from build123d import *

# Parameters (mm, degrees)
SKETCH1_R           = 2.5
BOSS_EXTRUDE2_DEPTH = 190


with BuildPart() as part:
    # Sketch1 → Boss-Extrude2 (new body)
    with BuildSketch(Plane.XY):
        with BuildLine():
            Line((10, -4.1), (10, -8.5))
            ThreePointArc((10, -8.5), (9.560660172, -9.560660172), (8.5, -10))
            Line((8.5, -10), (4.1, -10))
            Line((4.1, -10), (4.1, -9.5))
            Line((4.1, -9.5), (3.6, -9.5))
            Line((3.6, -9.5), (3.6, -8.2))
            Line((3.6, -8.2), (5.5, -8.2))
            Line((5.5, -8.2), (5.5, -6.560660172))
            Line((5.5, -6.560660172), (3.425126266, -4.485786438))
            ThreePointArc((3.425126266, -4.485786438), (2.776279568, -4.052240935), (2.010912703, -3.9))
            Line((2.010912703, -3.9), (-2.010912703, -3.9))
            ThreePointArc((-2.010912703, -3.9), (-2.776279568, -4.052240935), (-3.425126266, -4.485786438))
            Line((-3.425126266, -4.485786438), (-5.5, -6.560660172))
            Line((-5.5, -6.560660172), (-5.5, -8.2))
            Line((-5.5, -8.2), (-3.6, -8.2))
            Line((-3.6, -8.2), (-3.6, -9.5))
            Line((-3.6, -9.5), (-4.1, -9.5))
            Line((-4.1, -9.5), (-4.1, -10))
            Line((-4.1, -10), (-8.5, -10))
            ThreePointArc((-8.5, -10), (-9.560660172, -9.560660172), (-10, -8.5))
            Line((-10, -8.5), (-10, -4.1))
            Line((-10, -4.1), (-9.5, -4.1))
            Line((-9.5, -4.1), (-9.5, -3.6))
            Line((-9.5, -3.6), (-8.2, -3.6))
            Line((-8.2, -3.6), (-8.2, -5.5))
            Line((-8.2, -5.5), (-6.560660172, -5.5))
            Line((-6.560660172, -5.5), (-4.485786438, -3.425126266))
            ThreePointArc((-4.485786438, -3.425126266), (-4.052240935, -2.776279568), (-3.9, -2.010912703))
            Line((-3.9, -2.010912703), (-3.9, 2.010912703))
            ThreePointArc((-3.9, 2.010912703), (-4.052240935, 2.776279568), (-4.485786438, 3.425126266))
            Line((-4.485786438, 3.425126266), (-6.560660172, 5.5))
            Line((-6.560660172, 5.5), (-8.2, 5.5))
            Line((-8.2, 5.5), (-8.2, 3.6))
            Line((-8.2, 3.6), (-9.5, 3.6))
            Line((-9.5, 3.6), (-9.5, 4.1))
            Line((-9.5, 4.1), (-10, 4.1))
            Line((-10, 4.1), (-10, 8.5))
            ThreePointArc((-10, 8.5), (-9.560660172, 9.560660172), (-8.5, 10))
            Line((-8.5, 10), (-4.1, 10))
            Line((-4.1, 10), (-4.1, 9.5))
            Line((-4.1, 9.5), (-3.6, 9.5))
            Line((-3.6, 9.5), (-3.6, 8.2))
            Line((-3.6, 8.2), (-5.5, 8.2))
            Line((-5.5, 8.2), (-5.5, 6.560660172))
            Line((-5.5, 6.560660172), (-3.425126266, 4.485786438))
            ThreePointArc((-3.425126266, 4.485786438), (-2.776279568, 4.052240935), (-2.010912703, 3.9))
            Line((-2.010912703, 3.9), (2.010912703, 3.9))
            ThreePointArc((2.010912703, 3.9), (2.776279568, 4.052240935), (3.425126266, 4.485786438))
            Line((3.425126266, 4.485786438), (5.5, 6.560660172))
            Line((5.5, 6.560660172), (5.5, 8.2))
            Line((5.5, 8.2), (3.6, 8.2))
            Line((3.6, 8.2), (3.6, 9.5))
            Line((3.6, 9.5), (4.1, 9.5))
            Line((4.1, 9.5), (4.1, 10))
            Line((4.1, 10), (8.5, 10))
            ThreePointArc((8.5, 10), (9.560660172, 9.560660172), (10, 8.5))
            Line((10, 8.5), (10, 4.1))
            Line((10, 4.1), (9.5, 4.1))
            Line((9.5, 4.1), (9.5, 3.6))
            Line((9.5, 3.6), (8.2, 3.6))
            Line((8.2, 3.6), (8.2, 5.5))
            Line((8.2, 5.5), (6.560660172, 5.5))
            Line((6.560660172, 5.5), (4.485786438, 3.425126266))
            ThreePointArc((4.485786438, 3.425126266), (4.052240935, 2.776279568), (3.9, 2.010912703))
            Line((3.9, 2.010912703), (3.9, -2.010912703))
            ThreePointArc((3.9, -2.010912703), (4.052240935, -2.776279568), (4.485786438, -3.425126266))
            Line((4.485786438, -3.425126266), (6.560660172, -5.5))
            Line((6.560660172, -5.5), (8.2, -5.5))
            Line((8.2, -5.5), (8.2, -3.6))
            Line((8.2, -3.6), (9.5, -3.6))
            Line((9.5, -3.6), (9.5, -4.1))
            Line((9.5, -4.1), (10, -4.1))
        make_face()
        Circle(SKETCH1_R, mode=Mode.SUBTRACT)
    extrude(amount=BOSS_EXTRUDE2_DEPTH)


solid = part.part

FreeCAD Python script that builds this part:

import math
import FreeCAD as App
import Part
import Sketcher

V = App.Vector
Q = App.Units.Quantity

doc = App.newDocument("Part")
params = doc.addObject("Spreadsheet::Sheet", "Params")
for row, (alias, value) in enumerate([
    ("sketch1_diameter", "5 mm"),
    ("sketch1_radius", "2 mm"),
    ("sketch1_radius2", "1.5 mm"),
    ("sketch1_width", "0.5 mm"),
    ("sketch1_width2", "1.3 mm"),
    ("pad1_length", "190 mm"),
], start=1):
    params.set(f"A{row}", alias)
    params.set(f"B{row}", "=" + value)
    params.setAlias(f"B{row}", alias)

body = doc.addObject("PartDesign::Body", "Body")

sketch1 = doc.addObject("Sketcher::SketchObject", "Sketch")
body.addObject(sketch1)
sketch1.AttachmentSupport = (doc.XY_Plane, [""])
sketch1.MapMode = "FlatFace"
sketch1.addGeometry([
    Part.LineSegment(V(10, -8.5, 0), V(10, -4.1, 0)),
    Part.LineSegment(V(10, -4.1, 0), V(9.5, -4.1, 0)),
    Part.LineSegment(V(9.5, -4.1, 0), V(9.5, -3.6, 0)),
    Part.LineSegment(V(9.5, -3.6, 0), V(8.2, -3.6, 0)),
    Part.LineSegment(V(8.2, -3.6, 0), V(8.2, -5.5, 0)),
    Part.LineSegment(V(8.2, -5.5, 0), V(6.56, -5.5, 0)),
    Part.LineSegment(V(6.56, -5.5, 0), V(4.49, -3.43, 0)),
    Part.ArcOfCircle(Part.Circle(V(5.9, -2.01, 0), V(0, 0, 1), 2), math.radians(180), math.radians(225)),
    Part.LineSegment(V(3.9, -2.01, 0), V(3.9, 2.01, 0)),
    Part.ArcOfCircle(Part.Circle(V(5.9, 2.01, 0), V(0, 0, 1), 2), math.radians(135), math.radians(180)),
    Part.LineSegment(V(4.49, 3.43, 0), V(6.56, 5.5, 0)),
    Part.LineSegment(V(6.56, 5.5, 0), V(8.2, 5.5, 0)),
    Part.LineSegment(V(8.2, 5.5, 0), V(8.2, 3.6, 0)),
    Part.LineSegment(V(8.2, 3.6, 0), V(9.5, 3.6, 0)),
    Part.LineSegment(V(9.5, 3.6, 0), V(9.5, 4.1, 0)),
    Part.LineSegment(V(9.5, 4.1, 0), V(10, 4.1, 0)),
    Part.LineSegment(V(10, 4.1, 0), V(10, 8.5, 0)),
    Part.ArcOfCircle(Part.Circle(V(8.5, 8.5, 0), V(0, 0, 1), 1.5), math.radians(0), math.radians(90)),
    Part.LineSegment(V(8.5, 10, 0), V(4.1, 10, 0)),
    Part.LineSegment(V(4.1, 10, 0), V(4.1, 9.5, 0)),
    Part.LineSegment(V(4.1, 9.5, 0), V(3.6, 9.5, 0)),
    Part.LineSegment(V(3.6, 9.5, 0), V(3.6, 8.2, 0)),
    Part.LineSegment(V(3.6, 8.2, 0), V(5.5, 8.2, 0)),
    Part.LineSegment(V(5.5, 8.2, 0), V(5.5, 6.56, 0)),
    Part.LineSegment(V(5.5, 6.56, 0), V(3.43, 4.49, 0)),
    Part.ArcOfCircle(Part.Circle(V(2.01, 5.9, 0), V(0, 0, 1), 2), math.radians(-90), math.radians(-45)),
    Part.LineSegment(V(2.01, 3.9, 0), V(-2.01, 3.9, 0)),
    Part.ArcOfCircle(Part.Circle(V(-2.01, 5.9, 0), V(0, 0, 1), 2), math.radians(-135), math.radians(-90)),
    Part.LineSegment(V(-3.43, 4.49, 0), V(-5.5, 6.56, 0)),
    Part.LineSegment(V(-5.5, 6.56, 0), V(-5.5, 8.2, 0)),
    Part.LineSegment(V(-5.5, 8.2, 0), V(-3.6, 8.2, 0)),
    Part.LineSegment(V(-3.6, 8.2, 0), V(-3.6, 9.5, 0)),
    Part.LineSegment(V(-3.6, 9.5, 0), V(-4.1, 9.5, 0)),
    Part.LineSegment(V(-4.1, 9.5, 0), V(-4.1, 10, 0)),
    Part.LineSegment(V(-4.1, 10, 0), V(-8.5, 10, 0)),
    Part.ArcOfCircle(Part.Circle(V(-8.5, 8.5, 0), V(0, 0, 1), 1.5), math.radians(90), math.radians(180)),
    Part.LineSegment(V(-10, 8.5, 0), V(-10, 4.1, 0)),
    Part.LineSegment(V(-10, 4.1, 0), V(-9.5, 4.1, 0)),
    Part.LineSegment(V(-9.5, 4.1, 0), V(-9.5, 3.6, 0)),
    Part.LineSegment(V(-9.5, 3.6, 0), V(-8.2, 3.6, 0)),
    Part.LineSegment(V(-8.2, 3.6, 0), V(-8.2, 5.5, 0)),
    Part.LineSegment(V(-8.2, 5.5, 0), V(-6.56, 5.5, 0)),
    Part.LineSegment(V(-6.56, 5.5, 0), V(-4.49, 3.43, 0)),
    Part.ArcOfCircle(Part.Circle(V(-5.9, 2.01, 0), V(0, 0, 1), 2), math.radians(0), math.radians(45)),
    Part.LineSegment(V(-3.9, 2.01, 0), V(-3.9, -2.01, 0)),
    Part.ArcOfCircle(Part.Circle(V(-5.9, -2.01, 0), V(0, 0, 1), 2), math.radians(-45), math.radians(0)),
    Part.LineSegment(V(-4.49, -3.43, 0), V(-6.56, -5.5, 0)),
    Part.LineSegment(V(-6.56, -5.5, 0), V(-8.2, -5.5, 0)),
    Part.LineSegment(V(-8.2, -5.5, 0), V(-8.2, -3.6, 0)),
    Part.LineSegment(V(-8.2, -3.6, 0), V(-9.5, -3.6, 0)),
    Part.LineSegment(V(-9.5, -3.6, 0), V(-9.5, -4.1, 0)),
    Part.LineSegment(V(-9.5, -4.1, 0), V(-10, -4.1, 0)),
    Part.LineSegment(V(-10, -4.1, 0), V(-10, -8.5, 0)),
    Part.ArcOfCircle(Part.Circle(V(-8.5, -8.5, 0), V(0, 0, 1), 1.5), math.radians(180), math.radians(270)),
    Part.LineSegment(V(-8.5, -10, 0), V(-4.1, -10, 0)),
    Part.LineSegment(V(-4.1, -10, 0), V(-4.1, -9.5, 0)),
    Part.LineSegment(V(-4.1, -9.5, 0), V(-3.6, -9.5, 0)),
    Part.LineSegment(V(-3.6, -9.5, 0), V(-3.6, -8.2, 0)),
    Part.LineSegment(V(-3.6, -8.2, 0), V(-5.5, -8.2, 0)),
    Part.LineSegment(V(-5.5, -8.2, 0), V(-5.5, -6.56, 0)),
    Part.LineSegment(V(-5.5, -6.56, 0), V(-3.43, -4.49, 0)),
    Part.ArcOfCircle(Part.Circle(V(-2.01, -5.9, 0), V(0, 0, 1), 2), math.radians(90), math.radians(135)),
    Part.LineSegment(V(-2.01, -3.9, 0), V(2.01, -3.9, 0)),
    Part.ArcOfCircle(Part.Circle(V(2.01, -5.9, 0), V(0, 0, 1), 2), math.radians(45), math.radians(90)),
    Part.LineSegment(V(3.43, -4.49, 0), V(5.5, -6.56, 0)),
    Part.LineSegment(V(5.5, -6.56, 0), V(5.5, -8.2, 0)),
    Part.LineSegment(V(5.5, -8.2, 0), V(3.6, -8.2, 0)),
    Part.LineSegment(V(3.6, -8.2, 0), V(3.6, -9.5, 0)),
    Part.LineSegment(V(3.6, -9.5, 0), V(4.1, -9.5, 0)),
    Part.LineSegment(V(4.1, -9.5, 0), V(4.1, -10, 0)),
    Part.LineSegment(V(4.1, -10, 0), V(8.5, -10, 0)),
    Part.ArcOfCircle(Part.Circle(V(8.5, -8.5, 0), V(0, 0, 1), 1.5), math.radians(-90), math.radians(0)),
    Part.Circle(V(0, 0, 0), V(0, 0, 1), 2.5),
], False)
sketch1.addConstraint([
    Sketcher.Constraint("Coincident", 0, 2, 1, 1),
    Sketcher.Constraint("Coincident", 1, 2, 2, 1),
    Sketcher.Constraint("Coincident", 2, 2, 3, 1),
    Sketcher.Constraint("Coincident", 3, 2, 4, 1),
    Sketcher.Constraint("Coincident", 4, 2, 5, 1),
    Sketcher.Constraint("Coincident", 5, 2, 6, 1),
    Sketcher.Constraint("Tangent", 6, 2, 7, 2),
    Sketcher.Constraint("Tangent", 7, 1, 8, 1),
    Sketcher.Constraint("Tangent", 8, 2, 9, 2),
    Sketcher.Constraint("Tangent", 9, 1, 10, 1),
    Sketcher.Constraint("Coincident", 10, 2, 11, 1),
    Sketcher.Constraint("Coincident", 11, 2, 12, 1),
    Sketcher.Constraint("Coincident", 12, 2, 13, 1),
    Sketcher.Constraint("Coincident", 13, 2, 14, 1),
    Sketcher.Constraint("Coincident", 14, 2, 15, 1),
    Sketcher.Constraint("Coincident", 15, 2, 16, 1),
    Sketcher.Constraint("Tangent", 16, 2, 17, 1),
    Sketcher.Constraint("Tangent", 17, 2, 18, 1),
    Sketcher.Constraint("Coincident", 18, 2, 19, 1),
    Sketcher.Constraint("Coincident", 19, 2, 20, 1),
    Sketcher.Constraint("Coincident", 20, 2, 21, 1),
    Sketcher.Constraint("Coincident", 21, 2, 22, 1),
    Sketcher.Constraint("Coincident", 22, 2, 23, 1),
    Sketcher.Constraint("Coincident", 23, 2, 24, 1),
    Sketcher.Constraint("Tangent", 24, 2, 25, 2),
    Sketcher.Constraint("Tangent", 25, 1, 26, 1),
    Sketcher.Constraint("Tangent", 26, 2, 27, 2),
    Sketcher.Constraint("Tangent", 27, 1, 28, 1),
    Sketcher.Constraint("Coincident", 28, 2, 29, 1),
    Sketcher.Constraint("Coincident", 29, 2, 30, 1),
    Sketcher.Constraint("Coincident", 30, 2, 31, 1),
    Sketcher.Constraint("Coincident", 31, 2, 32, 1),
    Sketcher.Constraint("Coincident", 32, 2, 33, 1),
    Sketcher.Constraint("Coincident", 33, 2, 34, 1),
    Sketcher.Constraint("Tangent", 34, 2, 35, 1),
    Sketcher.Constraint("Tangent", 35, 2, 36, 1),
    Sketcher.Constraint("Coincident", 36, 2, 37, 1),
    Sketcher.Constraint("Coincident", 37, 2, 38, 1),
    Sketcher.Constraint("Coincident", 38, 2, 39, 1),
    Sketcher.Constraint("Coincident", 39, 2, 40, 1),
    Sketcher.Constraint("Coincident", 40, 2, 41, 1),
    Sketcher.Constraint("Coincident", 41, 2, 42, 1),
    Sketcher.Constraint("Tangent", 42, 2, 43, 2),
    Sketcher.Constraint("Tangent", 43, 1, 44, 1),
    Sketcher.Constraint("Tangent", 44, 2, 45, 2),
    Sketcher.Constraint("Tangent", 45, 1, 46, 1),
    Sketcher.Constraint("Coincident", 46, 2, 47, 1),
    Sketcher.Constraint("Coincident", 47, 2, 48, 1),
    Sketcher.Constraint("Coincident", 48, 2, 49, 1),
    Sketcher.Constraint("Coincident", 49, 2, 50, 1),
    Sketcher.Constraint("Coincident", 50, 2, 51, 1),
    Sketcher.Constraint("Coincident", 51, 2, 52, 1),
    Sketcher.Constraint("Tangent", 52, 2, 53, 1),
    Sketcher.Constraint("Tangent", 53, 2, 54, 1),
    Sketcher.Constraint("Coincident", 54, 2, 55, 1),
    Sketcher.Constraint("Coincident", 55, 2, 56, 1),
    Sketcher.Constraint("Coincident", 56, 2, 57, 1),
    Sketcher.Constraint("Coincident", 57, 2, 58, 1),
    Sketcher.Constraint("Coincident", 58, 2, 59, 1),
    Sketcher.Constraint("Coincident", 59, 2, 60, 1),
    Sketcher.Constraint("Tangent", 60, 2, 61, 2),
    Sketcher.Constraint("Tangent", 61, 1, 62, 1),
    Sketcher.Constraint("Tangent", 62, 2, 63, 2),
    Sketcher.Constraint("Tangent", 63, 1, 64, 1),
    Sketcher.Constraint("Coincident", 64, 2, 65, 1),
    Sketcher.Constraint("Coincident", 65, 2, 66, 1),
    Sketcher.Constraint("Coincident", 66, 2, 67, 1),
    Sketcher.Constraint("Coincident", 67, 2, 68, 1),
    Sketcher.Constraint("Coincident", 68, 2, 69, 1),
    Sketcher.Constraint("Coincident", 69, 2, 70, 1),
    Sketcher.Constraint("Tangent", 70, 2, 71, 1),
    Sketcher.Constraint("Tangent", 71, 2, 0, 1),
    Sketcher.Constraint("Vertical", 0),
    Sketcher.Constraint("Horizontal", 1),
    Sketcher.Constraint("Vertical", 2),
    Sketcher.Constraint("Horizontal", 3),
    Sketcher.Constraint("Vertical", 4),
    Sketcher.Constraint("Horizontal", 5),
    Sketcher.Constraint("Vertical", 8),
    Sketcher.Constraint("Horizontal", 11),
    Sketcher.Constraint("Vertical", 12),
    Sketcher.Constraint("Horizontal", 13),
    Sketcher.Constraint("Vertical", 14),
    Sketcher.Constraint("Horizontal", 15),
    Sketcher.Constraint("Vertical", 16),
    Sketcher.Constraint("Horizontal", 18),
    Sketcher.Constraint("Vertical", 19),
    Sketcher.Constraint("Horizontal", 20),
    Sketcher.Constraint("Vertical", 21),
    Sketcher.Constraint("Horizontal", 22),
    Sketcher.Constraint("Vertical", 23),
    Sketcher.Constraint("Horizontal", 26),
    Sketcher.Constraint("Vertical", 29),
    Sketcher.Constraint("Horizontal", 30),
    Sketcher.Constraint("Vertical", 31),
    Sketcher.Constraint("Horizontal", 32),
    Sketcher.Constraint("Vertical", 33),
    Sketcher.Constraint("Horizontal", 34),
    Sketcher.Constraint("Vertical", 36),
    Sketcher.Constraint("Horizontal", 37),
    Sketcher.Constraint("Vertical", 38),
    Sketcher.Constraint("Horizontal", 39),
    Sketcher.Constraint("Vertical", 40),
    Sketcher.Constraint("Horizontal", 41),
    Sketcher.Constraint("Vertical", 44),
    Sketcher.Constraint("Horizontal", 47),
    Sketcher.Constraint("Vertical", 48),
    Sketcher.Constraint("Horizontal", 49),
    Sketcher.Constraint("Vertical", 50),
    Sketcher.Constraint("Horizontal", 51),
    Sketcher.Constraint("Vertical", 52),
    Sketcher.Constraint("Horizontal", 54),
    Sketcher.Constraint("Vertical", 55),
    Sketcher.Constraint("Horizontal", 56),
    Sketcher.Constraint("Vertical", 57),
    Sketcher.Constraint("Horizontal", 58),
    Sketcher.Constraint("Vertical", 59),
    Sketcher.Constraint("Horizontal", 62),
    Sketcher.Constraint("Vertical", 65),
    Sketcher.Constraint("Horizontal", 66),
    Sketcher.Constraint("Vertical", 67),
    Sketcher.Constraint("Horizontal", 68),
    Sketcher.Constraint("Vertical", 69),
    Sketcher.Constraint("Horizontal", 70),
    Sketcher.Constraint("Coincident", 72, 3, -1, 1),
    Sketcher.Constraint("Equal", 7, 9),
    Sketcher.Constraint("Equal", 9, 25),
    Sketcher.Constraint("Equal", 25, 27),
    Sketcher.Constraint("Equal", 17, 35),
    Sketcher.Constraint("Equal", 27, 43),
    Sketcher.Constraint("Equal", 43, 45),
    Sketcher.Constraint("Equal", 35, 53),
    Sketcher.Constraint("Equal", 45, 61),
    Sketcher.Constraint("Equal", 61, 63),
    Sketcher.Constraint("Equal", 53, 71),
    Sketcher.Constraint("Symmetric", 7, 3, 43, 3, -1, 1),
    Sketcher.Constraint("Symmetric", 17, 3, 53, 3, -1, 1),
    Sketcher.Constraint("Symmetric", 25, 3, 61, 3, -1, 1),
    Sketcher.Constraint("Symmetric", 35, 3, 71, 3, -1, 1),
    Sketcher.Constraint("Symmetric", 1, 2, 37, 2, -1, 1),
    Sketcher.Constraint("Symmetric", 3, 2, 39, 2, -1, 1),
    Sketcher.Constraint("Symmetric", 5, 2, 41, 2, -1, 1),
    Sketcher.Constraint("Symmetric", 9, 1, 45, 1, -1, 1),
    Sketcher.Constraint("Symmetric", 11, 2, 47, 2, -1, 1),
    Sketcher.Constraint("Symmetric", 13, 2, 49, 2, -1, 1),
    Sketcher.Constraint("Symmetric", 19, 2, 55, 2, -1, 1),
    Sketcher.Constraint("Symmetric", 21, 2, 57, 2, -1, 1),
    Sketcher.Constraint("Symmetric", 23, 2, 59, 2, -1, 1),
    Sketcher.Constraint("Symmetric", 27, 1, 63, 1, -1, 1),
    Sketcher.Constraint("Symmetric", 29, 2, 65, 2, -1, 1),
    Sketcher.Constraint("Symmetric", 31, 2, 67, 2, -1, 1),
    Sketcher.Constraint("Symmetric", 17, 3, 35, 3, -2),
    Sketcher.Constraint("Symmetric", 24, 2, 27, 1, -2),
    Sketcher.Constraint("Symmetric", 22, 2, 29, 2, -2),
    Sketcher.Constraint("Symmetric", 20, 2, 31, 2, -2),
    Sketcher.Constraint("Symmetric", 14, 2, 37, 2, -2),
    Sketcher.Constraint("Symmetric", 12, 2, 39, 2, -2),
    Sketcher.Constraint("Symmetric", 10, 2, 41, 2, -2),
    Sketcher.Constraint("Perpendicular", 6, 10),
    Sketcher.Constraint("Parallel", 10, 24),
    Sketcher.Constraint("Perpendicular", 24, 28),
    Sketcher.Constraint("Horizontal", 1, 2, 50, 2),
    Sketcher.Constraint("Vertical", 33, 2, 54, 2),
    Sketcher.Constraint("Vertical", 19, 2, 68, 2),
    Sketcher.Constraint("Equal", 15, 20),
    Sketcher.Constraint("Equal", 70, 0),
    Sketcher.Constraint("Equal", 68, 2),
    Sketcher.Constraint("Equal", 66, 4),
    Sketcher.Constraint("Equal", 62, 8),
    Sketcher.Constraint("Equal", 14, 19),
    Sketcher.Constraint("Equal", 49, 21),
    Sketcher.Constraint("Equal", 47, 23),
    Sketcher.Constraint("Equal", 10, 24),
    Sketcher.Constraint("Diameter", 72, Q("5 mm")),
    Sketcher.Constraint("Radius", 7, Q("2 mm")),
    Sketcher.Constraint("Radius", 17, Q("1.5 mm")),
    Sketcher.Constraint("DistanceX", 1, 2, 1, 1, Q("0.5 mm")),
    Sketcher.Constraint("DistanceX", 3, 2, 3, 1, Q("1.3 mm")),
    Sketcher.Constraint("DistanceX", 18, 2, 18, 1, Q("4.4 mm")),
    Sketcher.Constraint("DistanceX", 22, 1, 22, 2, Q("1.9 mm")),
    Sketcher.Constraint("DistanceX", -1, 1, 0, 2, Q("10 mm")),
    Sketcher.Constraint("DistanceX", -1, 1, 7, 3, Q("5.9 mm")),
    Sketcher.Constraint("DistanceX", 5, 2, 5, 1, Q("1.63934 mm")),
])
sketch1.setExpression("Constraints[173]", "Params.sketch1_diameter")
sketch1.setExpression("Constraints[174]", "Params.sketch1_radius")
sketch1.setExpression("Constraints[175]", "Params.sketch1_radius2")
sketch1.setExpression("Constraints[176]", "Params.sketch1_width")
sketch1.setExpression("Constraints[177]", "Params.sketch1_width2")
pad1 = doc.addObject("PartDesign::Pad", "Pad")
body.addObject(pad1)
pad1.Profile = sketch1
pad1.setExpression("Length", "Params.pad1_length")

doc.recompute()
